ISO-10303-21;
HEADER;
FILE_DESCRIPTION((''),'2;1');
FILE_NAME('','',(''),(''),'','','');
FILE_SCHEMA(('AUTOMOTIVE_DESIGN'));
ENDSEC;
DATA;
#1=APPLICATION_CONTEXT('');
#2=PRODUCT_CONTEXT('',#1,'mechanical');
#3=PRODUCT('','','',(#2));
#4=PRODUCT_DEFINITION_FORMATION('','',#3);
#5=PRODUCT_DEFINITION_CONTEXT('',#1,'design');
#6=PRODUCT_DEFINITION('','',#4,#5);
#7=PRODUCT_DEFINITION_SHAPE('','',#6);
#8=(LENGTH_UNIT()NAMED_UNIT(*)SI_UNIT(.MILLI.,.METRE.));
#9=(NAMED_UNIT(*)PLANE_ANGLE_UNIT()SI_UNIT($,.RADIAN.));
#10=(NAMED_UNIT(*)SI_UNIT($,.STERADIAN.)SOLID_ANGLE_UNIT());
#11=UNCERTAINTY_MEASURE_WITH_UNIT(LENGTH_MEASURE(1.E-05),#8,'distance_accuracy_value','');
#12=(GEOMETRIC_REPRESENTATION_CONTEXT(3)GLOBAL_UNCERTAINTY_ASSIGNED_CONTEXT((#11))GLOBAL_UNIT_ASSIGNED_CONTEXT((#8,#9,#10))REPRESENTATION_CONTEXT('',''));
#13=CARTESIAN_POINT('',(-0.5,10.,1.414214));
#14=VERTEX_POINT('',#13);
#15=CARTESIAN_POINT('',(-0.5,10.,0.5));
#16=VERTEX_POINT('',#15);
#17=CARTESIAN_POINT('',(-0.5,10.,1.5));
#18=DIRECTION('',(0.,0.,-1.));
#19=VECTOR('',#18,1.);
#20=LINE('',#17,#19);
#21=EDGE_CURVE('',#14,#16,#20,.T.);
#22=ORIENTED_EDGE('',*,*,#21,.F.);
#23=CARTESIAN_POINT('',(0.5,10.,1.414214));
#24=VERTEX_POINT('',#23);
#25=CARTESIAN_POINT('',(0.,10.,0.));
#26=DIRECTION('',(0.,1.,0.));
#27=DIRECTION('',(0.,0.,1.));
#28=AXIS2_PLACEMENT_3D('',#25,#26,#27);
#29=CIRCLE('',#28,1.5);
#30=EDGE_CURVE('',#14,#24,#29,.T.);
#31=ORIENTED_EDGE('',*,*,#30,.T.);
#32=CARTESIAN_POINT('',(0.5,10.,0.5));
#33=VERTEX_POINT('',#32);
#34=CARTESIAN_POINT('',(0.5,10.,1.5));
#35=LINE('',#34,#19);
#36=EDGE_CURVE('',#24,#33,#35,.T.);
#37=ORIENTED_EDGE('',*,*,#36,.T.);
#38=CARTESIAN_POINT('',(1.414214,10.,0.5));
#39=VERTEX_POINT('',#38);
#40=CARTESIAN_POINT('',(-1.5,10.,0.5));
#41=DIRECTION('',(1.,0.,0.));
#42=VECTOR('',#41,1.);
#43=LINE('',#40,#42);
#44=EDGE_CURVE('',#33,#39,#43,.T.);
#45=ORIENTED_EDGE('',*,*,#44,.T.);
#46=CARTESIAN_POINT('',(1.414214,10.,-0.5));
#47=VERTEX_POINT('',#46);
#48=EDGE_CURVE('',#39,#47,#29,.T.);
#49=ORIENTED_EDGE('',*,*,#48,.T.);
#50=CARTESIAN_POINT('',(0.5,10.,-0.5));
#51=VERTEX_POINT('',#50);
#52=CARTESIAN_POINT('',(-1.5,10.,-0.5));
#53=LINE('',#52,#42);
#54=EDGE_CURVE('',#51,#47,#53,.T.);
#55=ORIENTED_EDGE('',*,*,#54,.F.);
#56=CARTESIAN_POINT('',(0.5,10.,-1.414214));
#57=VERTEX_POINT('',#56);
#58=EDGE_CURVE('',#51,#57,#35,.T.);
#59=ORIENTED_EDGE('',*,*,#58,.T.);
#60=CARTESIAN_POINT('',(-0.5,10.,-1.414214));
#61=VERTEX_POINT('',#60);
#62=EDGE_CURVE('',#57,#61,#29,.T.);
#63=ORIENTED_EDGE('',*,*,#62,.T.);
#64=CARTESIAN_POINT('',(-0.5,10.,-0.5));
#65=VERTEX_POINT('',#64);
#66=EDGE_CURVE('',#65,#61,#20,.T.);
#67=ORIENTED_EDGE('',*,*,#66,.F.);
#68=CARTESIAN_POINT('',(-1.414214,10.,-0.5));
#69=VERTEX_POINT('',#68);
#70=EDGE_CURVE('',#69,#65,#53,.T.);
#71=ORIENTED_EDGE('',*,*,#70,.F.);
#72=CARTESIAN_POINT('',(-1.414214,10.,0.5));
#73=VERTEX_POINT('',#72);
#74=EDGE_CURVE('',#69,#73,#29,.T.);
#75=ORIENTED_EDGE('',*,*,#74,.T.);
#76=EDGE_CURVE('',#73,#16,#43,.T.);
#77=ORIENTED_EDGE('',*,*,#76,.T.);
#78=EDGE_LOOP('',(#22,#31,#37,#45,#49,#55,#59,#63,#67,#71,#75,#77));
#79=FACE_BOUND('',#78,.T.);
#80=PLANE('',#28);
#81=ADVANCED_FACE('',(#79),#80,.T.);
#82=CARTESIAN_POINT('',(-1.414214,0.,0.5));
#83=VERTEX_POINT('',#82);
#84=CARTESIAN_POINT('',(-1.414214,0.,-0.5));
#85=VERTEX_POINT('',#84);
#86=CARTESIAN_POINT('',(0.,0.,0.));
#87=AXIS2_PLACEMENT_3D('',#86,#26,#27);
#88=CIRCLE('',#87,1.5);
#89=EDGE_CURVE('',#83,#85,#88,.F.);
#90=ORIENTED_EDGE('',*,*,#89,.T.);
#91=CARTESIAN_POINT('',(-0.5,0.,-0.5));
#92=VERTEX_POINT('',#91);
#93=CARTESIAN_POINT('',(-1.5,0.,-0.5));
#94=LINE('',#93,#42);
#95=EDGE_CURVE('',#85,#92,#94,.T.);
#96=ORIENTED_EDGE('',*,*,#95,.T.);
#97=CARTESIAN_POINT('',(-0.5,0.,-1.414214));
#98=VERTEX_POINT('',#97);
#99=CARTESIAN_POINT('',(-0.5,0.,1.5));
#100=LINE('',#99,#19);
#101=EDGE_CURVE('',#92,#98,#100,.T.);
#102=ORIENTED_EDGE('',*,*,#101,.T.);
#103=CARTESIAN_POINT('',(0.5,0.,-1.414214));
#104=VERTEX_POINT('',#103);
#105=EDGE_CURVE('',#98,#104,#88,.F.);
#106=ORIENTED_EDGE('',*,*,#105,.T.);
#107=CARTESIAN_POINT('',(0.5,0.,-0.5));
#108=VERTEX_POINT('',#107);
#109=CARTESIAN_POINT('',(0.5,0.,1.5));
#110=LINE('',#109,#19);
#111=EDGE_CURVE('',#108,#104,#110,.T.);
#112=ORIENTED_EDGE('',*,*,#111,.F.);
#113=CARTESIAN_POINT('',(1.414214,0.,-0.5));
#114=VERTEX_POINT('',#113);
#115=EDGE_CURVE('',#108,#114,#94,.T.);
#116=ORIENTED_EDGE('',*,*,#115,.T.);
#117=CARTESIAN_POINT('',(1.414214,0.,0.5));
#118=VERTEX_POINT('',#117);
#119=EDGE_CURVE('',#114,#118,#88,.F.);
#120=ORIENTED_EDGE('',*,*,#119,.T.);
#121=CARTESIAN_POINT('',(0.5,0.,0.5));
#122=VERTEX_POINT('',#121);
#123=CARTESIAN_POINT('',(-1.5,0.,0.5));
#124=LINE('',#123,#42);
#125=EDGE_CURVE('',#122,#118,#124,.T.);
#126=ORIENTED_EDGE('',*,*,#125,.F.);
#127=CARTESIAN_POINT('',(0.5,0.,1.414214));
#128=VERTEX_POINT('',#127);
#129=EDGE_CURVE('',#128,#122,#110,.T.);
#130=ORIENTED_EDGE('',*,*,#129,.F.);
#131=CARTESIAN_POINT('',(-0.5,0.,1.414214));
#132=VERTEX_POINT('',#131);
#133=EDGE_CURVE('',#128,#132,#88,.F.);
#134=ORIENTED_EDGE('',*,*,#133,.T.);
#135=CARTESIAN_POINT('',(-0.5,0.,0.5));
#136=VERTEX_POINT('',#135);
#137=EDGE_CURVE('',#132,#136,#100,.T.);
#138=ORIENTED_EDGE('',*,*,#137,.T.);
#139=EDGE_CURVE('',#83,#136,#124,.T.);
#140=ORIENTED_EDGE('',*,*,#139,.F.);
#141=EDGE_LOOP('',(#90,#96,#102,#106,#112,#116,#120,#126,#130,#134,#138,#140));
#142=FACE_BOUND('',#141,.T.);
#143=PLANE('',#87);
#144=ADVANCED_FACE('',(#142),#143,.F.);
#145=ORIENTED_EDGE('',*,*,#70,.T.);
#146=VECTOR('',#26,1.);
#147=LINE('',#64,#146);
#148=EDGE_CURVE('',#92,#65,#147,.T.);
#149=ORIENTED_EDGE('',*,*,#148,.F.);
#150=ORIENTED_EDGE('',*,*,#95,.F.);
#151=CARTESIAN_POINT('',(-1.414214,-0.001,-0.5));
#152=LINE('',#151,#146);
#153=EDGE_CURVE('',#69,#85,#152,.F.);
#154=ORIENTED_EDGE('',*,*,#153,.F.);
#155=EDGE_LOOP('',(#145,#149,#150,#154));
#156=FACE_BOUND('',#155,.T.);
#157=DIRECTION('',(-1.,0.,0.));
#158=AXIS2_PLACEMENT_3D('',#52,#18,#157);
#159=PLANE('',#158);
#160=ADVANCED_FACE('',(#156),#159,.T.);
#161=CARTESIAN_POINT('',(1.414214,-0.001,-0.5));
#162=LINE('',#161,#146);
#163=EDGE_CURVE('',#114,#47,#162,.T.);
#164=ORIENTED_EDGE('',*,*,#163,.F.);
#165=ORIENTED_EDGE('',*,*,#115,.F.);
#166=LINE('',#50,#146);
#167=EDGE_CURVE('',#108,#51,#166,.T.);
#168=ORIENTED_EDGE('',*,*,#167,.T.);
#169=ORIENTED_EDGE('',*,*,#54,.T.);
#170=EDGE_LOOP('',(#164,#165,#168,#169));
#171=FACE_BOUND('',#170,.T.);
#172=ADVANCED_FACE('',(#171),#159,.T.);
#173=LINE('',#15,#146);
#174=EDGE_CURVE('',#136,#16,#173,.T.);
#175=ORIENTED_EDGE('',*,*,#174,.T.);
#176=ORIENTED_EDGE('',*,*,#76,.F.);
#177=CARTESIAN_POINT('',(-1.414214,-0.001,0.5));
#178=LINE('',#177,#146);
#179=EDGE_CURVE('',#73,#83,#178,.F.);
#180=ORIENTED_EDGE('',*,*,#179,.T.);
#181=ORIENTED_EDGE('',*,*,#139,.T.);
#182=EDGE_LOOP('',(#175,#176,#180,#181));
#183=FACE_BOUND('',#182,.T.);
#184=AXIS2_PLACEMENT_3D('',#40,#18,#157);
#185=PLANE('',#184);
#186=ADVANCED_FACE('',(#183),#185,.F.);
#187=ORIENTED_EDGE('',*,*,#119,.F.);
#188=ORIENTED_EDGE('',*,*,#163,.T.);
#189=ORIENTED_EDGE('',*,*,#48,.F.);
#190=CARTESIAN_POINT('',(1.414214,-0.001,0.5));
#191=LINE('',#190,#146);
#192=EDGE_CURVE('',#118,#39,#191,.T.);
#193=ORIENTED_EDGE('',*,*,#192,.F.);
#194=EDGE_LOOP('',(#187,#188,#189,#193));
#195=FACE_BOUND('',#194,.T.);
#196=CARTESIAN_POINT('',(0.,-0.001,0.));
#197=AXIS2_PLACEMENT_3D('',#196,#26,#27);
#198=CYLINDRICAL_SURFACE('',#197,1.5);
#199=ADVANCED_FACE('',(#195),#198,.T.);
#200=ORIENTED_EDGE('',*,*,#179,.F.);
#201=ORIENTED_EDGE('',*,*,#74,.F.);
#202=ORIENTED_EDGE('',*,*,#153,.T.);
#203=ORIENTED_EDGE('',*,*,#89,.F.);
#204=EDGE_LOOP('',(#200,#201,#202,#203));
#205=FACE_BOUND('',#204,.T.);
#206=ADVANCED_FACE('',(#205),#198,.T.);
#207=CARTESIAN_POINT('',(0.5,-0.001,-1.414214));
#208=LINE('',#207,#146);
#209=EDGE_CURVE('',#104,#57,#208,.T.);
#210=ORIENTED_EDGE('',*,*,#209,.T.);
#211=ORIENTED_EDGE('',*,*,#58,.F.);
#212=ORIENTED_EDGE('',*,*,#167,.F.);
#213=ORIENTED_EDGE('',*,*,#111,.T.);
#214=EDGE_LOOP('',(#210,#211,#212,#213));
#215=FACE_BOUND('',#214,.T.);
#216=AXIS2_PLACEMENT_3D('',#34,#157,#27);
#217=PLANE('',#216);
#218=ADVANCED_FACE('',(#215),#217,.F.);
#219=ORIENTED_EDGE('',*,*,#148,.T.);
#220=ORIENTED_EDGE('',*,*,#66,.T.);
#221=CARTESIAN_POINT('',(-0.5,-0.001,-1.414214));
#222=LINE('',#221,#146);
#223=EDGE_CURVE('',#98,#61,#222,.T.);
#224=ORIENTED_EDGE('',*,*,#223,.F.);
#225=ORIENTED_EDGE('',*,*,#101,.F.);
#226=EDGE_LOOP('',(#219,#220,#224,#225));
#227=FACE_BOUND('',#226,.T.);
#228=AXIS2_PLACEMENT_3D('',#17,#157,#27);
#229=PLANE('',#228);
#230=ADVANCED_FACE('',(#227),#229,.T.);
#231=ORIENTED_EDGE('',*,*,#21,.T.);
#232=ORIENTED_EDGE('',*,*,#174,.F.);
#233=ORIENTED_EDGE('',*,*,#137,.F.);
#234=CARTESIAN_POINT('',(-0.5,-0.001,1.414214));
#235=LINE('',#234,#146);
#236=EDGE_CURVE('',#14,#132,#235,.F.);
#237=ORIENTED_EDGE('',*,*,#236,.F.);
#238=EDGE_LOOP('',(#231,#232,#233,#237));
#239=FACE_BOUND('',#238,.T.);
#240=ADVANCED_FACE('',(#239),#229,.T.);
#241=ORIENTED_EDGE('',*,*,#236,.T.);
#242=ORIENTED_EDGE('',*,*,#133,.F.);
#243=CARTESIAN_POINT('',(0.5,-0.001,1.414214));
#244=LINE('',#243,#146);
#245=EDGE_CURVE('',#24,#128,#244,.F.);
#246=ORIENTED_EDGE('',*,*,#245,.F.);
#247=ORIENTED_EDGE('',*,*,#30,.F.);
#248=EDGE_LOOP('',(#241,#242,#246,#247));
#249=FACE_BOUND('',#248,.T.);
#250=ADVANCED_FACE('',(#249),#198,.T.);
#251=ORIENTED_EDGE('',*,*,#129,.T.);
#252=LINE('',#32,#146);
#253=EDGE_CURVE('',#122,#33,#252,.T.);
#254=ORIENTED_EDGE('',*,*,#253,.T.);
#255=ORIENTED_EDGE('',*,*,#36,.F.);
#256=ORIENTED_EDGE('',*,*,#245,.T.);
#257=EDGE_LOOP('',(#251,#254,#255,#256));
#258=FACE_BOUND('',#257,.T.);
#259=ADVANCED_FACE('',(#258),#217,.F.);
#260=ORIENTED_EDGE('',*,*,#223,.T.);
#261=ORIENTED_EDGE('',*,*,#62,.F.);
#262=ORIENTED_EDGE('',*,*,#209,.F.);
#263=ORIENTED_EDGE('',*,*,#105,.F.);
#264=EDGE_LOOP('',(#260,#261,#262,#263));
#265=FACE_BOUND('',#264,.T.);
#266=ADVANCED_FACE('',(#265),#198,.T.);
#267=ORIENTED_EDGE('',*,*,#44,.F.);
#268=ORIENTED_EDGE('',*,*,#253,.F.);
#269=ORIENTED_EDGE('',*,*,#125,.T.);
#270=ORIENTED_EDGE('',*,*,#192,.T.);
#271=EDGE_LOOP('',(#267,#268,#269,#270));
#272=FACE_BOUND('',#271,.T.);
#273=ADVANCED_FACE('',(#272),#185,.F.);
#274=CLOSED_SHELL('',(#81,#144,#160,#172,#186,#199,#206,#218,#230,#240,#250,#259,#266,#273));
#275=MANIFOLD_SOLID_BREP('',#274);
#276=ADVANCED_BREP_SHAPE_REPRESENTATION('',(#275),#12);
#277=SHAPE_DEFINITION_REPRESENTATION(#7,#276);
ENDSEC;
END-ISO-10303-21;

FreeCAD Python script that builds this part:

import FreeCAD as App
import Part
import Sketcher
from FreeCAD import Vector


def add_polygon(sketch, points):
    """Adds a closed chain of lines whose ends are joined by coincident constraints."""
    first, n = sketch.GeometryCount, len(points)
    for a, b in zip(points, points[1:] + points[:1]):
        sketch.addGeometry(Part.LineSegment(App.Vector(*a, 0), App.Vector(*b, 0)), False)
    for i in range(n):
        sketch.addConstraint(Sketcher.Constraint("Coincident", first + i, 2, first + (i + 1) % n, 1))

doc = App.newDocument("Part")
body = doc.addObject("PartDesign::Body", "Body")

# Sketch on XZ plane
sketch1 = doc.addObject("Sketcher::SketchObject", "Sketch")
body.addObject(sketch1)
sketch1.AttachmentSupport = (doc.XZ_Plane, [""])
sketch1.MapMode = "FlatFace"
add_polygon(sketch1, [(-1.5, -0.5), (-1.5, 0.5), (-0.5, 0.5), (-0.5, 1.5), (0.5, 1.5), (0.5, 0.5), (1.5, 0.5), (1.5, -0.5), (0.5, -0.5), (0.5, -1.5), (-0.5, -1.5), (-0.5, -0.5)])  # lines 0-11
sketch1.addConstraint(Sketcher.Constraint("Vertical", 0))
sketch1.addConstraint(Sketcher.Constraint("Horizontal", 1))
sketch1.addConstraint(Sketcher.Constraint("Vertical", 2))
sketch1.addConstraint(Sketcher.Constraint("Horizontal", 3))
sketch1.addConstraint(Sketcher.Constraint("Vertical", 4))
sketch1.addConstraint(Sketcher.Constraint("Horizontal", 5))
sketch1.addConstraint(Sketcher.Constraint("Vertical", 6))
sketch1.addConstraint(Sketcher.Constraint("Horizontal", 7))
sketch1.addConstraint(Sketcher.Constraint("Vertical", 8))
sketch1.addConstraint(Sketcher.Constraint("Horizontal", 9))
sketch1.addConstraint(Sketcher.Constraint("Vertical", 10))
sketch1.addConstraint(Sketcher.Constraint("Horizontal", 11))
sketch1.addConstraint(Sketcher.Constraint("Symmetric", 0, 2, 6, 2, -1, 1))
sketch1.addConstraint(Sketcher.Constraint("Symmetric", 2, 2, 8, 2, -1, 1))
sketch1.addConstraint(Sketcher.Constraint("Symmetric", 4, 2, 10, 2, -1, 1))
sketch1.addConstraint(Sketcher.Constraint("Symmetric", 1, 2, 4, 2, -2))
sketch1.addConstraint(Sketcher.Constraint("Equal", 1, 3))
sketch1.addConstraint(Sketcher.Constraint("Equal", 11, 0))
sketch1.addConstraint(Sketcher.Constraint("Equal", 0, 2))
sketch1.addConstraint(Sketcher.Constraint("DistanceX", 1, 1, 1, 2, 1.0))
pad1 = doc.addObject("PartDesign::Pad", "Pad")
body.addObject(pad1)
pad1.Profile = sketch1
pad1.Length = 10
pad1.Reversed = True

# Sketch on XZ plane
sketch2 = doc.addObject("Sketcher::SketchObject", "Sketch001")
body.addObject(sketch2)
sketch2.AttachmentSupport = (doc.XZ_Plane, [""])
sketch2.MapMode = "FlatFace"
sketch2.AttachmentOffset = App.Placement(Vector(0, 0, -10), App.Rotation())
add_polygon(sketch2, [(-3.6, -3.6), (-3.6, 3.6), (3.6, 3.6), (3.6, -3.6)])  # lines 0-3
sketch2.addGeometry(Part.Circle(Vector(0, 0, 0), Vector(0, 0, 1), 1.5), False)  # 4
sketch2.addConstraint(Sketcher.Constraint("Vertical", 0))
sketch2.addConstraint(Sketcher.Constraint("Horizontal", 1))
sketch2.addConstraint(Sketcher.Constraint("Vertical", 2))
sketch2.addConstraint(Sketcher.Constraint("Horizontal", 3))
sketch2.addConstraint(Sketcher.Constraint("Coincident", 4, 3, -1, 1))
sketch2.addConstraint(Sketcher.Constraint("Symmetric", 0, 2, 2, 2, -1, 1))
sketch2.addConstraint(Sketcher.Constraint("Equal", 3, 0))
sketch2.addConstraint(Sketcher.Constraint("Diameter", 4, 3.0))
sketch2.addConstraint(Sketcher.Constraint("DistanceX", 1, 1, 1, 2, 7.172))
pocket1 = doc.addObject("PartDesign::Pocket", "Pocket")
body.addObject(pocket1)
pocket1.Profile = sketch2
pocket1.Length = 10
pocket1.Reversed = True

doc.recompute()
